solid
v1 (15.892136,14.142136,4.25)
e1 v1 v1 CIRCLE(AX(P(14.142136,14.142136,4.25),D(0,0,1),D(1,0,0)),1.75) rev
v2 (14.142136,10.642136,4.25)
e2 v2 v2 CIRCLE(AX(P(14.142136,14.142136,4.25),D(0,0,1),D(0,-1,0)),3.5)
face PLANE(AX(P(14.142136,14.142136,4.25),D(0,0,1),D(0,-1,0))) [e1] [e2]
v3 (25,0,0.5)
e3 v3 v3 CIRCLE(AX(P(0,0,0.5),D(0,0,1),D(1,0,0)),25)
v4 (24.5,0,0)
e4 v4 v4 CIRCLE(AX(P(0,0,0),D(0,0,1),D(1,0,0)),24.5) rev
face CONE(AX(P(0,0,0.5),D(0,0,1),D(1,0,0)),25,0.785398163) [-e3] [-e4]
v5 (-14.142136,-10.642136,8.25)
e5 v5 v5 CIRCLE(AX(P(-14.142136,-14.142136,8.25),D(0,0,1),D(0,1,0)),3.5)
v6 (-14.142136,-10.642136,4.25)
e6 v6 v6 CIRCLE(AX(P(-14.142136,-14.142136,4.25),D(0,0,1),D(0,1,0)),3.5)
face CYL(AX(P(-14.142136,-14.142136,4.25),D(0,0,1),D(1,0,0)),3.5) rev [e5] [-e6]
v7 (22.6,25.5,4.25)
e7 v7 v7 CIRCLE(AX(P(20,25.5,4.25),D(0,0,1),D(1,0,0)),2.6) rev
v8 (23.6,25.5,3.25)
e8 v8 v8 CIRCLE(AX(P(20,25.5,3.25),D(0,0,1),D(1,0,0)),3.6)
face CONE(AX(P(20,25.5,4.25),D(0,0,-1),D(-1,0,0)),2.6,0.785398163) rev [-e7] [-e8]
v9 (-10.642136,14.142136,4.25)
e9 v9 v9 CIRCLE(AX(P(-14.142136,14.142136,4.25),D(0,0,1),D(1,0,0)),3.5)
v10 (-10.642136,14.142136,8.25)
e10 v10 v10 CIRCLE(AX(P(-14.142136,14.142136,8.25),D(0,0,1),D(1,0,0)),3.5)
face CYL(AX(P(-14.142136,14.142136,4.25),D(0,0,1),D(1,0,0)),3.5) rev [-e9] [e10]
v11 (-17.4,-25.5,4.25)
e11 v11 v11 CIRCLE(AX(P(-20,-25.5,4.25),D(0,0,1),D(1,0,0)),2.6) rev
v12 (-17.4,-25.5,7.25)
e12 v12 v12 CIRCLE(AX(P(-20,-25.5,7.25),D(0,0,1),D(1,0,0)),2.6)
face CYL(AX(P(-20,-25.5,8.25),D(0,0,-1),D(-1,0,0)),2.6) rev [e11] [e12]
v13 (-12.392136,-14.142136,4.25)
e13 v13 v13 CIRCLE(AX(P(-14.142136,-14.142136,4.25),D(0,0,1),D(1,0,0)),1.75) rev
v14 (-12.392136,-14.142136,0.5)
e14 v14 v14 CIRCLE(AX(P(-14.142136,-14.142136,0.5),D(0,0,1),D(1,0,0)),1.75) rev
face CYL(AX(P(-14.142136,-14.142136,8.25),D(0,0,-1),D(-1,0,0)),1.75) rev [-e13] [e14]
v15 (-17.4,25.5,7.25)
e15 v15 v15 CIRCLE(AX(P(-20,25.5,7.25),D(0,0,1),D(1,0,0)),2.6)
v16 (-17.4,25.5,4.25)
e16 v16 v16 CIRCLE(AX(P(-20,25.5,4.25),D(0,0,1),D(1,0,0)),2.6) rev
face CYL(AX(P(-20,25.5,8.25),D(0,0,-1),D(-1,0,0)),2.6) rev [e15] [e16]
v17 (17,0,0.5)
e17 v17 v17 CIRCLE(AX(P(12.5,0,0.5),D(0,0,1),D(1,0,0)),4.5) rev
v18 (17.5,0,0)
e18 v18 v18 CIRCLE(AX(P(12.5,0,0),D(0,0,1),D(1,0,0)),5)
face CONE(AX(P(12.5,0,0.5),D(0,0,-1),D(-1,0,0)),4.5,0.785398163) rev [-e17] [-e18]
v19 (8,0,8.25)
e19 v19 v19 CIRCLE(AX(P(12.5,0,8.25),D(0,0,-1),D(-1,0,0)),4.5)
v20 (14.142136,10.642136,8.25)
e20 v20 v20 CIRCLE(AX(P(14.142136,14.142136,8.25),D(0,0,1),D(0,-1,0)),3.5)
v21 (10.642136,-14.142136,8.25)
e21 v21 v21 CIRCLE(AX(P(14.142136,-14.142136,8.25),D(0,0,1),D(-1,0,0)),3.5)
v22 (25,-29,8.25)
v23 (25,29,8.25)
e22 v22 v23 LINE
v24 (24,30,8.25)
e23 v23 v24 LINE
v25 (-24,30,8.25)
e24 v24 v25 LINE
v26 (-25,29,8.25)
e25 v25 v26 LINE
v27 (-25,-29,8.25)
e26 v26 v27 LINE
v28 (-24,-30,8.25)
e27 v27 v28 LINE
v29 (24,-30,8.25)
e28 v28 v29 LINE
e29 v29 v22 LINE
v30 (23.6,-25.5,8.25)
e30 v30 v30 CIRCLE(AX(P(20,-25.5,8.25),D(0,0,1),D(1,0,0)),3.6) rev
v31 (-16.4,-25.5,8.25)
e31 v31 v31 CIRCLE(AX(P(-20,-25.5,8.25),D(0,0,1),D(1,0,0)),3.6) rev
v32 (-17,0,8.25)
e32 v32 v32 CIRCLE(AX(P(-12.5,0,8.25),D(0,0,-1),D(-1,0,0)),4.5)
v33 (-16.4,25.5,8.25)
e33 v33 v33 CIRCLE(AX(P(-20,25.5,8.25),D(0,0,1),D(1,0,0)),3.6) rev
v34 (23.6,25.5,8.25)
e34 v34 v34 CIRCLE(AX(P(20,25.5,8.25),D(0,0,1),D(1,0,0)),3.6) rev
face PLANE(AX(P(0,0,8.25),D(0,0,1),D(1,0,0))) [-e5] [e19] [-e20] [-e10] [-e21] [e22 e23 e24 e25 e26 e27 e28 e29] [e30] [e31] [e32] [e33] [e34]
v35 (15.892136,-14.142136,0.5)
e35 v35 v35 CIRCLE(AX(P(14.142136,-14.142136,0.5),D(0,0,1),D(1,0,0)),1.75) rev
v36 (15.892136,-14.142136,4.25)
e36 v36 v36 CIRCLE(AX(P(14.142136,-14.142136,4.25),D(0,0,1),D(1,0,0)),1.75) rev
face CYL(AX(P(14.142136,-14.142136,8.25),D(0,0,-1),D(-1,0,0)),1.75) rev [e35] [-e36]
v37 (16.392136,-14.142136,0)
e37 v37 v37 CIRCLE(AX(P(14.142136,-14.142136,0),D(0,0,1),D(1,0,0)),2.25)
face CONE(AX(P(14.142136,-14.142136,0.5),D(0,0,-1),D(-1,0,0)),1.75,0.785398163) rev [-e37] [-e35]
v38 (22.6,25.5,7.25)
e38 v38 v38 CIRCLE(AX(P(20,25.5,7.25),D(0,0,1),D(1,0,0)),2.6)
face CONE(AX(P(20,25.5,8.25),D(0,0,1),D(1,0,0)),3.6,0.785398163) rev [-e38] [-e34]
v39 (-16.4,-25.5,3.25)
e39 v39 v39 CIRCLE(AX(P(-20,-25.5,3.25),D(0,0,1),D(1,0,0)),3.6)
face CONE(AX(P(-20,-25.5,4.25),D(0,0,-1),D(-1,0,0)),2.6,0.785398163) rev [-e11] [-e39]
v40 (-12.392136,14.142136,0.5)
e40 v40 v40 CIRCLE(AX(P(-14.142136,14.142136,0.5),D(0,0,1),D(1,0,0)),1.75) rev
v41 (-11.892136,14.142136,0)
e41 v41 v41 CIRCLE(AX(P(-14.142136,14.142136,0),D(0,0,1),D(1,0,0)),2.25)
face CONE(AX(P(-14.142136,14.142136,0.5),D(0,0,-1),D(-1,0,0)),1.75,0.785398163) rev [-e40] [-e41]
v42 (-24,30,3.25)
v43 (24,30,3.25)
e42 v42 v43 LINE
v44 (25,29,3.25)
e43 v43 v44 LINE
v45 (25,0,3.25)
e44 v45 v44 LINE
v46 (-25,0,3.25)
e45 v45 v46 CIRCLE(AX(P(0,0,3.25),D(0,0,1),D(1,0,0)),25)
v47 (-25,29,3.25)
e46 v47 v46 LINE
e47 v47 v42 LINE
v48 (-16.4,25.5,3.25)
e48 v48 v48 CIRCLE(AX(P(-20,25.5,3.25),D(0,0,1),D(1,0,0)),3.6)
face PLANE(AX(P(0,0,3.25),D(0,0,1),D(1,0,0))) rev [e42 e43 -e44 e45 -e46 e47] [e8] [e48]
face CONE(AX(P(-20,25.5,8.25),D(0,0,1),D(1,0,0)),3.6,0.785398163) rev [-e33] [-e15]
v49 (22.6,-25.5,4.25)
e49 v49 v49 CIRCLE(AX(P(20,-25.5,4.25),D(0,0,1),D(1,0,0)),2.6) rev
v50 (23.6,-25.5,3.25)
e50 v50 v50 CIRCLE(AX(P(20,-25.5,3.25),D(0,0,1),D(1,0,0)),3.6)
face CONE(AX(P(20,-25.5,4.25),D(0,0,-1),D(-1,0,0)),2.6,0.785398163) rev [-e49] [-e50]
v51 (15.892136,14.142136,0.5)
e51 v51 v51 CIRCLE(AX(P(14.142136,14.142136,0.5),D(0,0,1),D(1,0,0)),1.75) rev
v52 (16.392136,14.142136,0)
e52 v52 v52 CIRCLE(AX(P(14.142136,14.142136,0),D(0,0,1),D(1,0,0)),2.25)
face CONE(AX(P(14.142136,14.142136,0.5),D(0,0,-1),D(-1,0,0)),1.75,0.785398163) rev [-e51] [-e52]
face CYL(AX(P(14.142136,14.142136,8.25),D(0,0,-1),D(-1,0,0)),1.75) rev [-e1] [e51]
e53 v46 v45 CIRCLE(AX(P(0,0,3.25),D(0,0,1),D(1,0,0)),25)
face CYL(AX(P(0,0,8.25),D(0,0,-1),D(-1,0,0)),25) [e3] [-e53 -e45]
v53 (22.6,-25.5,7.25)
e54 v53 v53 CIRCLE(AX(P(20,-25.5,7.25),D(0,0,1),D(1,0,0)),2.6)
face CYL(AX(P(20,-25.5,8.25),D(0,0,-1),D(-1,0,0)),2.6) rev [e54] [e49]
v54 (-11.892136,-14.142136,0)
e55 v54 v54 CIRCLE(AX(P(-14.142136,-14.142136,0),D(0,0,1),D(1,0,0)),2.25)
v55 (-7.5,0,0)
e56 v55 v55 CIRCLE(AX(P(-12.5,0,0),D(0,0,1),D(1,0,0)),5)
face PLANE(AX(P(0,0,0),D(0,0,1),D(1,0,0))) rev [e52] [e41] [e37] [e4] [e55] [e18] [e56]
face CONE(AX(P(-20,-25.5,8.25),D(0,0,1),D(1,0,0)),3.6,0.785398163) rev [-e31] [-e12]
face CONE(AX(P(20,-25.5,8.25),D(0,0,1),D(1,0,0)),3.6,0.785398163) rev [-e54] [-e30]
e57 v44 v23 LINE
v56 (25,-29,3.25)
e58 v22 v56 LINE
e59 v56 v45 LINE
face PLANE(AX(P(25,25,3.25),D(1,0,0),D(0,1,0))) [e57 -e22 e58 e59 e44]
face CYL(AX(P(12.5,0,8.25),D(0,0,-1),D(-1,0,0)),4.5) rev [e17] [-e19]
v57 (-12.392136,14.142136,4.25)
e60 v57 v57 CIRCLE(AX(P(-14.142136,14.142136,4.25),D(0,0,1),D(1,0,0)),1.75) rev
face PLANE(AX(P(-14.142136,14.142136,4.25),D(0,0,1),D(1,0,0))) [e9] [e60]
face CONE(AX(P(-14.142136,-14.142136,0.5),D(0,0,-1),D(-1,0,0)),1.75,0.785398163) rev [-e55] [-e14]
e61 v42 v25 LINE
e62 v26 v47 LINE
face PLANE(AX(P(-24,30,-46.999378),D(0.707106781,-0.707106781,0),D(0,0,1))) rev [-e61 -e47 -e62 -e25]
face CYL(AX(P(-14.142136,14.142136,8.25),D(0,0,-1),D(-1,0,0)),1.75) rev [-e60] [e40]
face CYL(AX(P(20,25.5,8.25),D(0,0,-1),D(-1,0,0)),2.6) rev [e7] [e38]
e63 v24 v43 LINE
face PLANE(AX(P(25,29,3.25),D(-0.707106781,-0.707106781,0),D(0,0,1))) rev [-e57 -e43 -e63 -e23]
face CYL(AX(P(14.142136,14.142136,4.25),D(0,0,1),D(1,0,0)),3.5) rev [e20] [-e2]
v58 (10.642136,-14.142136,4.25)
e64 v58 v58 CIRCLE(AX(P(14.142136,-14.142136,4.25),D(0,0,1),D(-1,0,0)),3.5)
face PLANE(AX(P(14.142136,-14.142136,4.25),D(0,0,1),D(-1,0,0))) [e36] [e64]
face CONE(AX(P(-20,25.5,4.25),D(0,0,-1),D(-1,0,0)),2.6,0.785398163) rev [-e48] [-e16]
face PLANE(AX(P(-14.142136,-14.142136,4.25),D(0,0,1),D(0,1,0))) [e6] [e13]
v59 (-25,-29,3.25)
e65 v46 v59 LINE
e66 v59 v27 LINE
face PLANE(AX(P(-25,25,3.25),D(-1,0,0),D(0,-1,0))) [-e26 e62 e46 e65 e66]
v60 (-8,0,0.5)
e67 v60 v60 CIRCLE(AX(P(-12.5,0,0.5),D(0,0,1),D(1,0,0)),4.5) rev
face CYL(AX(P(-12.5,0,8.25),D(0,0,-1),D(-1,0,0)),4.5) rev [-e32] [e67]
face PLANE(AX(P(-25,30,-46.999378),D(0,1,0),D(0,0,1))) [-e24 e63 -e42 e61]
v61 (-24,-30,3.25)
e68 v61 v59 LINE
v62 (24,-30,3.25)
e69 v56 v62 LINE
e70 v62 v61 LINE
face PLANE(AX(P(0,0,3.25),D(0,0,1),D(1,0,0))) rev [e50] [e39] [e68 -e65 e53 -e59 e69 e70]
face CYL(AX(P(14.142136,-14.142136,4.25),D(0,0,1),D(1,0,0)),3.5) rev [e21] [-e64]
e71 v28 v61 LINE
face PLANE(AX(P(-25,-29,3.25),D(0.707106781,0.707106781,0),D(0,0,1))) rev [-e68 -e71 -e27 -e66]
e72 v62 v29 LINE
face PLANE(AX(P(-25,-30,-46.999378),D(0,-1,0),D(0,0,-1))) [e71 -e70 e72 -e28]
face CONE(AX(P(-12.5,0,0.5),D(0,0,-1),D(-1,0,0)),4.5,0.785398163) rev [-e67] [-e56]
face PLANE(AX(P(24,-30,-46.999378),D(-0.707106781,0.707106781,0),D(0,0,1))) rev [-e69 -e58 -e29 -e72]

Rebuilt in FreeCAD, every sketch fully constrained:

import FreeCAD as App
import Part
import Sketcher

V = App.Vector


def edges_at(feature, points):
    """Names of the edges that pass closest to the given points."""
    edges = feature.Shape.Edges
    near = lambda p: min(range(len(edges)), key=lambda i: edges[i].distToShape(Part.Vertex(*p))[0])
    return sorted({f"Edge{near(p) + 1}" for p in points})

doc = App.newDocument("Part")
body = doc.addObject("PartDesign::Body", "Body")

# Sketch on XY plane
sketch1 = body.newObject("Sketcher::SketchObject", "Sketch")
sketch1.AttachmentSupport = (doc.getObject("XY_Plane"), [""])
sketch1.MapMode = "FlatFace"
sketch1.addGeometry(Part.Circle(V(0, 0, 0), V(0, 0, 1), 25), False)
sketch1.addConstraint(Sketcher.Constraint("Coincident", 0, 3, -1, 1))
sketch1.addConstraint(Sketcher.Constraint("Diameter", 0, 50.0))
pad1 = body.newObject("PartDesign::Pad", "Pad")
pad1.Profile = sketch1
pad1.Length = 8.25

# Sketch on XY plane
sketch2 = body.newObject("Sketcher::SketchObject", "Sketch001")
sketch2.AttachmentSupport = (doc.getObject("XY_Plane"), [""])
sketch2.MapMode = "FlatFace"
sketch2.AttachmentOffset = App.Placement(V(0, 0, 8.25), App.Rotation())
sketch2.addGeometry(Part.LineSegment(V(-25, 25, 0), V(-25, -25, 0)), False)
sketch2.addGeometry(Part.LineSegment(V(-25, -25, 0), V(25, -25, 0)), False)
sketch2.addGeometry(Part.LineSegment(V(25, -25, 0), V(25, 25, 0)), False)
sketch2.addGeometry(Part.LineSegment(V(25, 25, 0), V(-25, 25, 0)), False)
sketch2.addConstraint(Sketcher.Constraint("Coincident", 0, 2, 1, 1))
sketch2.addConstraint(Sketcher.Constraint("Coincident", 1, 2, 2, 1))
sketch2.addConstraint(Sketcher.Constraint("Coincident", 2, 2, 3, 1))
sketch2.addConstraint(Sketcher.Constraint("Coincident", 3, 2, 0, 1))
sketch2.addConstraint(Sketcher.Constraint("Vertical", 0))
sketch2.addConstraint(Sketcher.Constraint("Horizontal", 1))
sketch2.addConstraint(Sketcher.Constraint("Vertical", 2))
sketch2.addConstraint(Sketcher.Constraint("Horizontal", 3))
sketch2.addConstraint(Sketcher.Constraint("Symmetric", 0, 2, 2, 2, -1, 1))
sketch2.addConstraint(Sketcher.Constraint("Equal", 3, 0))
sketch2.addConstraint(Sketcher.Constraint("DistanceX", 1, 1, 1, 2, 50.0))
pad2 = body.newObject("PartDesign::Pad", "Pad001")
pad2.Profile = sketch2
pad2.Length = 5
pad2.Reversed = True

# Sketch on XY plane
sketch3 = body.newObject("Sketcher::SketchObject", "Sketch002")
sketch3.AttachmentSupport = (doc.getObject("XY_Plane"), [""])
sketch3.MapMode = "FlatFace"
sketch3.addGeometry(Part.Circle(V(-12.5, 0, 0), V(0, 0, 1), 4.5), False)
sketch3.addGeometry(Part.Circle(V(12.5, 0, 0), V(0, 0, 1), 4.5), False)
sketch3.addGeometry(Part.Circle(V(14.142136, 14.142136, 0), V(0, 0, 1), 1.75), False)
sketch3.addGeometry(Part.Circle(V(-14.142136, 14.142136, 0), V(0, 0, 1), 1.75), False)
sketch3.addGeometry(Part.Circle(V(-14.142136, -14.142136, 0), V(0, 0, 1), 1.75), False)
sketch3.addGeometry(Part.Circle(V(14.142136, -14.142136, 0), V(0, 0, 1), 1.75), False)
sketch3.addConstraint(Sketcher.Constraint("Equal", 0, 1))
sketch3.addConstraint(Sketcher.Constraint("Equal", 2, 3))
sketch3.addConstraint(Sketcher.Constraint("Equal", 3, 4))
sketch3.addConstraint(Sketcher.Constraint("Equal", 4, 5))
sketch3.addConstraint(Sketcher.Constraint("Symmetric", 0, 3, 1, 3, -1, 1))
sketch3.addConstraint(Sketcher.Constraint("Symmetric", 2, 3, 4, 3, -1, 1))
sketch3.addConstraint(Sketcher.Constraint("Symmetric", 3, 3, 5, 3, -1, 1))
sketch3.addConstraint(Sketcher.Constraint("Symmetric", 2, 3, 3, 3, -2))
sketch3.addConstraint(Sketcher.Constraint("PointOnObject", 0, 3, -1))
sketch3.addConstraint(Sketcher.Constraint("Diameter", 0, 9.0))
sketch3.addConstraint(Sketcher.Constraint("Diameter", 2, 3.5))
sketch3.addConstraint(Sketcher.Constraint("DistanceX", 0, 3, 1, 3, 25.0))
sketch3.addConstraint(Sketcher.Constraint("DistanceX", 3, 3, 2, 3, 28.284271))
sketch3.addConstraint(Sketcher.Constraint("DistanceY", 4, 3, 3, 3, 28.284271))
pocket1 = body.newObject("PartDesign::Pocket", "Pocket")
pocket1.Profile = sketch3
pocket1.Type = "ThroughAll"
pocket1.Reversed = True

# Sketch on XY plane
sketch4 = body.newObject("Sketcher::SketchObject", "Sketch003")
sketch4.AttachmentSupport = (doc.getObject("XY_Plane"), [""])
sketch4.MapMode = "FlatFace"
sketch4.AttachmentOffset = App.Placement(V(0, 0, 8.25), App.Rotation())
sketch4.addGeometry(Part.Circle(V(-14.142136, 14.142136, 0), V(0, 0, 1), 3.5), False)
sketch4.addConstraint(Sketcher.Constraint("Diameter", 0, 7.0))
sketch4.addConstraint(Sketcher.Constraint("DistanceX", 0, 3, -1, 1, 14.142136))
sketch4.addConstraint(Sketcher.Constraint("DistanceY", -1, 1, 0, 3, 14.142136))
pocket2 = body.newObject("PartDesign::Pocket", "Pocket001")
pocket2.Profile = sketch4
pocket2.Length = 4
doc.recompute()

polarpattern = body.newObject("PartDesign::PolarPattern", "PolarPattern")
polarpattern.Originals = [pocket2]
polarpattern.Axis = (doc.getObject("Z_Axis"), [""])
polarpattern.Angle = 360
polarpattern.Occurrences = 4
body.Tip = polarpattern
doc.recompute()

chamfer = body.newObject("PartDesign::Chamfer", "Chamfer")
chamfer.Base = (polarpattern, edges_at(polarpattern, [
    (-25, 0, 0),
    (17, 0, 0),
    (15.892, 14.142, 0),
    (-12.392, 14.142, 0),
    (-12.392, -14.142, 0),
    (15.892, -14.142, 0),
    (-8, 0, 0),
]))
chamfer.Size = 0.5

# Sketch on XY plane
sketch5 = body.newObject("Sketcher::SketchObject", "Sketch004")
sketch5.AttachmentSupport = (doc.getObject("XY_Plane"), [""])
sketch5.MapMode = "FlatFace"
sketch5.AttachmentOffset = App.Placement(V(0, 0, 8.25), App.Rotation())
sketch5.addGeometry(Part.LineSegment(V(-25, 30, 0), V(-25, 25, 0)), False)
sketch5.addGeometry(Part.LineSegment(V(-25, 25, 0), V(25, 25, 0)), False)
sketch5.addGeometry(Part.LineSegment(V(25, 25, 0), V(25, 30, 0)), False)
sketch5.addGeometry(Part.LineSegment(V(25, 30, 0), V(-25, 30, 0)), False)
sketch5.addGeometry(Part.LineSegment(V(-25, -25, 0), V(-25, -30, 0)), False)
sketch5.addGeometry(Part.LineSegment(V(-25, -30, 0), V(25, -30, 0)), False)
sketch5.addGeometry(Part.LineSegment(V(25, -30, 0), V(25, -25, 0)), False)
sketch5.addGeometry(Part.LineSegment(V(25, -25, 0), V(-25, -25, 0)), False)
sketch5.addConstraint(Sketcher.Constraint("Coincident", 0, 2, 1, 1))
sketch5.addConstraint(Sketcher.Constraint("Coincident", 1, 2, 2, 1))
sketch5.addConstraint(Sketcher.Constraint("Coincident", 2, 2, 3, 1))
sketch5.addConstraint(Sketcher.Constraint("Coincident", 3, 2, 0, 1))
sketch5.addConstraint(Sketcher.Constraint("Coincident", 4, 2, 5, 1))
sketch5.addConstraint(Sketcher.Constraint("Coincident", 5, 2, 6, 1))
sketch5.addConstraint(Sketcher.Constraint("Coincident", 6, 2, 7, 1))
sketch5.addConstraint(Sketcher.Constraint("Coincident", 7, 2, 4, 1))
sketch5.addConstraint(Sketcher.Constraint("Vertical", 0))
sketch5.addConstraint(Sketcher.Constraint("Horizontal", 1))
sketch5.addConstraint(Sketcher.Constraint("Vertical", 2))
sketch5.addConstraint(Sketcher.Constraint("Horizontal", 3))
sketch5.addConstraint(Sketcher.Constraint("Vertical", 4))
sketch5.addConstraint(Sketcher.Constraint("Horizontal", 5))
sketch5.addConstraint(Sketcher.Constraint("Vertical", 6))
sketch5.addConstraint(Sketcher.Constraint("Horizontal", 7))
sketch5.addConstraint(Sketcher.Constraint("Symmetric", 2, 2, 4, 2, -1, 1))
sketch5.addConstraint(Sketcher.Constraint("Symmetric", 0, 2, 6, 2, -1, 1))
sketch5.addConstraint(Sketcher.Constraint("Vertical", 3, 2, 4, 2))
sketch5.addConstraint(Sketcher.Constraint("DistanceX", 1, 1, 1, 2, 50.0))
sketch5.addConstraint(Sketcher.Constraint("DistanceY", 0, 2, 0, 1, 5.0))
sketch5.addConstraint(Sketcher.Constraint("DistanceY", -1, 1, 0, 2, 25.0))
pad3 = body.newObject("PartDesign::Pad", "Pad002")
pad3.Profile = sketch5
pad3.Length = 5
pad3.Reversed = True

# Sketch on XY plane
sketch6 = body.newObject("Sketcher::SketchObject", "Sketch005")
sketch6.AttachmentSupport = (doc.getObject("XY_Plane"), [""])
sketch6.MapMode = "FlatFace"
sketch6.AttachmentOffset = App.Placement(V(0, 0, 3.25), App.Rotation())
sketch6.addGeometry(Part.Circle(V(20, 25.5, 0), V(0, 0, 1), 2.6), False)
sketch6.addGeometry(Part.Circle(V(-20, 25.5, 0), V(0, 0, 1), 2.6), False)
sketch6.addGeometry(Part.Circle(V(-20, -25.5, 0), V(0, 0, 1), 2.6), False)
sketch6.addGeometry(Part.Circle(V(20, -25.5, 0), V(0, 0, 1), 2.6), False)
sketch6.addConstraint(Sketcher.Constraint("Equal", 0, 1))
sketch6.addConstraint(Sketcher.Constraint("Equal", 1, 2))
sketch6.addConstraint(Sketcher.Constraint("Equal", 2, 3))
sketch6.addConstraint(Sketcher.Constraint("Symmetric", 0, 3, 2, 3, -1, 1))
sketch6.addConstraint(Sketcher.Constraint("Symmetric", 1, 3, 3, 3, -1, 1))
sketch6.addConstraint(Sketcher.Constraint("Symmetric", 0, 3, 1, 3, -2))
sketch6.addConstraint(Sketcher.Constraint("Diameter", 0, 5.2))
sketch6.addConstraint(Sketcher.Constraint("DistanceX", -1, 1, 0, 3, 20.0))
sketch6.addConstraint(Sketcher.Constraint("DistanceY", 2, 3, 1, 3, 51.0))
pocket3 = body.newObject("PartDesign::Pocket", "Pocket002")
pocket3.Profile = sketch6
pocket3.Type = "ThroughAll"
pocket3.Reversed = True
doc.recompute()

chamfer2 = body.newObject("PartDesign::Chamfer", "Chamfer001")
chamfer2.Base = (pocket3, edges_at(pocket3, [
    (-25, 30, 5.75),
    (25, 30, 5.75),
    (-25, -30, 5.75),
    (25, -30, 5.75),
    (22.6, -25.5, 8.25),
    (22.6, -25.5, 3.25),
    (-17.4, -25.5, 8.25),
    (-17.4, -25.5, 3.25),
    (-17.4, 25.5, 8.25),
    (-17.4, 25.5, 3.25),
    (22.6, 25.5, 8.25),
    (22.6, 25.5, 3.25),
]))
chamfer2.Size = 1

doc.recompute()
